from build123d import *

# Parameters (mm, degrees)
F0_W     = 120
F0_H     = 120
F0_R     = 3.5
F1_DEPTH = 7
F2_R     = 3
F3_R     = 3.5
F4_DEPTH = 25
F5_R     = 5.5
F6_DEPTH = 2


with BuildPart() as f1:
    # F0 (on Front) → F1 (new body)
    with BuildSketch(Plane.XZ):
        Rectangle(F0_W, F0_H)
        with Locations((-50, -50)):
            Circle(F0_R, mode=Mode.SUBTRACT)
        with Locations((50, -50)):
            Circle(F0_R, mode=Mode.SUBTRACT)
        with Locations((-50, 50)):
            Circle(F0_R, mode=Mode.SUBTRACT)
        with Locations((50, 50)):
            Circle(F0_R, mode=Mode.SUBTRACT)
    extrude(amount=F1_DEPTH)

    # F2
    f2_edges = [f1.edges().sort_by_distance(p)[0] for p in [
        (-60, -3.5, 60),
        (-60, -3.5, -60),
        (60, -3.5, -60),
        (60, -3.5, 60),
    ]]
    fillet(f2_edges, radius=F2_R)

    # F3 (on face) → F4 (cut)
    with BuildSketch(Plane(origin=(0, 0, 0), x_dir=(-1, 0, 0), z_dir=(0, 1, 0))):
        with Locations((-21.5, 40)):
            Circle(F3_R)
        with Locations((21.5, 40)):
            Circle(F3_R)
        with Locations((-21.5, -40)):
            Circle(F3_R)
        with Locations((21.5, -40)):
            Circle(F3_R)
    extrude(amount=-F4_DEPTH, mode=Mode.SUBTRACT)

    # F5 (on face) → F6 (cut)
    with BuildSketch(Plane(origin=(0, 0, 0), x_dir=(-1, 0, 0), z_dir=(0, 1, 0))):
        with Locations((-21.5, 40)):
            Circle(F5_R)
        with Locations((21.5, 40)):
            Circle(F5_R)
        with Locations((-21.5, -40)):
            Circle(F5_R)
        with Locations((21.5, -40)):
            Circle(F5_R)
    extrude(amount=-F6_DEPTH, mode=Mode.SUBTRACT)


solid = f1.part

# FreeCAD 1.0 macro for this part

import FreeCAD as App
import Part
import Sketcher
Q = App.Units.Quantity


def edges_at(feature, points):
    """Names of the edges that pass closest to the given points."""
    edges = feature.Shape.Edges
    near = lambda p: min(range(len(edges)), key=lambda i: edges[i].distToShape(Part.Vertex(*p))[0])
    return sorted({f"Edge{near(p) + 1}" for p in points})

doc = App.newDocument("Part")
params = doc.addObject("Spreadsheet::Sheet", "Params")
for row, (alias, value) in enumerate([
    ("sketch1_diameter", "7 mm"),
    ("sketch1_width", "120 mm"),
    ("pad1_length", "7 mm"),
    ("fillet_radius", "3 mm"),
    ("sketch2_diameter", "7 mm"),
    ("pocket1_length", "25 mm"),
    ("sketch3_diameter", "11 mm"),
    ("pocket2_length", "2 mm"),
], start=1):
    params.set(f"A{row}", alias)
    params.set(f"B{row}", "=" + value)
    params.setAlias(f"B{row}", alias)

body = doc.addObject("PartDesign::Body", "Body")

sketch1 = body.newObject("Sketcher::SketchObject", "Sketch")
sketch1.AttachmentSupport = (doc.getObject("XZ_Plane"), [""])
sketch1.MapMode = "FlatFace"
sketch1.addGeometry([
    Part.LineSegment(App.Vector(-60, 60, 0), App.Vector(-60, -60, 0)),
    Part.LineSegment(App.Vector(-60, -60, 0), App.Vector(60, -60, 0)),
    Part.LineSegment(App.Vector(60, -60, 0), App.Vector(60, 60, 0)),
    Part.LineSegment(App.Vector(60, 60, 0), App.Vector(-60, 60, 0)),
    Part.Circle(App.Vector(-50, -50, 0), App.Vector(0, 0, 1), 3.5),
    Part.Circle(App.Vector(50, -50, 0), App.Vector(0, 0, 1), 3.5),
    Part.Circle(App.Vector(-50, 50, 0), App.Vector(0, 0, 1), 3.5),
    Part.Circle(App.Vector(50, 50, 0), App.Vector(0, 0, 1), 3.5),
], False)
sketch1.addConstraint([
    Sketcher.Constraint("Coincident", 0, 2, 1, 1),
    Sketcher.Constraint("Coincident", 1, 2, 2, 1),
    Sketcher.Constraint("Coincident", 2, 2, 3, 1),
    Sketcher.Constraint("Coincident", 3, 2, 0, 1),
    Sketcher.Constraint("Vertical", 0),
    Sketcher.Constraint("Horizontal", 1),
    Sketcher.Constraint("Vertical", 2),
    Sketcher.Constraint("Horizontal", 3),
    Sketcher.Constraint("Equal", 4, 5),
    Sketcher.Constraint("Equal", 5, 6),
    Sketcher.Constraint("Equal", 6, 7),
    Sketcher.Constraint("Symmetric", 5, 3, 6, 3, -1, 1),
    Sketcher.Constraint("Symmetric", 4, 3, 7, 3, -1, 1),
    Sketcher.Constraint("Symmetric", 0, 2, 2, 2, -1, 1),
    Sketcher.Constraint("Symmetric", 4, 3, 5, 3, -2),
    Sketcher.Constraint("Equal", 3, 0),
    Sketcher.Constraint("Diameter", 4, Q("7 mm")),
    Sketcher.Constraint("DistanceX", 1, 1, 1, 2, Q("120 mm")),
    Sketcher.Constraint("DistanceX", 4, 3, -1, 1, Q("50 mm")),
    Sketcher.Constraint("DistanceY", 4, 3, -1, 1, Q("50 mm")),
])
sketch1.setExpression("Constraints[16]", "Params.sketch1_diameter")
sketch1.setExpression("Constraints[17]", "Params.sketch1_width")
pad1 = body.newObject("PartDesign::Pad", "Pad")
pad1.Profile = sketch1
pad1.setExpression("Length", "Params.pad1_length")
doc.recompute()

fillet = body.newObject("PartDesign::Fillet", "Fillet")
fillet.Base = (pad1, edges_at(pad1, [
    (-60, -3.5, 60),
    (-60, -3.5, -60),
    (60, -3.5, -60),
    (60, -3.5, 60),
]))
fillet.setExpression("Radius", "Params.fillet_radius")

sketch2 = body.newObject("Sketcher::SketchObject", "Sketch001")
sketch2.AttachmentSupport = (doc.getObject("XZ_Plane"), [""])
sketch2.MapMode = "FlatFace"
sketch2.addGeometry([
    Part.Circle(App.Vector(21.5, 40, 0), App.Vector(0, 0, 1), 3.5),
    Part.Circle(App.Vector(-21.5, 40, 0), App.Vector(0, 0, 1), 3.5),
    Part.Circle(App.Vector(21.5, -40, 0), App.Vector(0, 0, 1), 3.5),
    Part.Circle(App.Vector(-21.5, -40, 0), App.Vector(0, 0, 1), 3.5),
], False)
sketch2.addConstraint([
    Sketcher.Constraint("Equal", 0, 1),
    Sketcher.Constraint("Equal", 1, 2),
    Sketcher.Constraint("Equal", 2, 3),
    Sketcher.Constraint("Symmetric", 1, 3, 2, 3, -1, 1),
    Sketcher.Constraint("Symmetric", 0, 3, 3, 3, -1, 1),
    Sketcher.Constraint("Symmetric", 0, 3, 1, 3, -2),
    Sketcher.Constraint("Diameter", 0, Q("7 mm")),
    Sketcher.Constraint("DistanceY", -1, 1, 0, 3, Q("40 mm")),
    Sketcher.Constraint("DistanceX", 1, 3, 0, 3, Q("43 mm")),
])
sketch2.setExpression("Constraints[6]", "Params.sketch2_diameter")
pocket1 = body.newObject("PartDesign::Pocket", "Pocket")
pocket1.Profile = sketch2
pocket1.setExpression("Length", "Params.pocket1_length")
pocket1.Reversed = True

sketch3 = body.newObject("Sketcher::SketchObject", "Sketch002")
sketch3.AttachmentSupport = (doc.getObject("XZ_Plane"), [""])
sketch3.MapMode = "FlatFace"
sketch3.addGeometry([
    Part.Circle(App.Vector(21.5, 40, 0), App.Vector(0, 0, 1), 5.5),
    Part.Circle(App.Vector(-21.5, 40, 0), App.Vector(0, 0, 1), 5.5),
    Part.Circle(App.Vector(21.5, -40, 0), App.Vector(0, 0, 1), 5.5),
    Part.Circle(App.Vector(-21.5, -40, 0), App.Vector(0, 0, 1), 5.5),
], False)
sketch3.addConstraint([
    Sketcher.Constraint("Equal", 0, 1),
    Sketcher.Constraint("Equal", 1, 2),
    Sketcher.Constraint("Equal", 2, 3),
    Sketcher.Constraint("Symmetric", 1, 3, 2, 3, -1, 1),
    Sketcher.Constraint("Symmetric", 0, 3, 3, 3, -1, 1),
    Sketcher.Constraint("Symmetric", 0, 3, 1, 3, -2),
    Sketcher.Constraint("Diameter", 0, Q("11 mm")),
    Sketcher.Constraint("DistanceY", -1, 1, 0, 3, Q("40 mm")),
    Sketcher.Constraint("DistanceX", 1, 3, 0, 3, Q("43 mm")),
])
sketch3.setExpression("Constraints[6]", "Params.sketch3_diameter")
pocket2 = body.newObject("PartDesign::Pocket", "Pocket001")
pocket2.Profile = sketch3
pocket2.setExpression("Length", "Params.pocket2_length")
pocket2.Reversed = True

doc.recompute()
